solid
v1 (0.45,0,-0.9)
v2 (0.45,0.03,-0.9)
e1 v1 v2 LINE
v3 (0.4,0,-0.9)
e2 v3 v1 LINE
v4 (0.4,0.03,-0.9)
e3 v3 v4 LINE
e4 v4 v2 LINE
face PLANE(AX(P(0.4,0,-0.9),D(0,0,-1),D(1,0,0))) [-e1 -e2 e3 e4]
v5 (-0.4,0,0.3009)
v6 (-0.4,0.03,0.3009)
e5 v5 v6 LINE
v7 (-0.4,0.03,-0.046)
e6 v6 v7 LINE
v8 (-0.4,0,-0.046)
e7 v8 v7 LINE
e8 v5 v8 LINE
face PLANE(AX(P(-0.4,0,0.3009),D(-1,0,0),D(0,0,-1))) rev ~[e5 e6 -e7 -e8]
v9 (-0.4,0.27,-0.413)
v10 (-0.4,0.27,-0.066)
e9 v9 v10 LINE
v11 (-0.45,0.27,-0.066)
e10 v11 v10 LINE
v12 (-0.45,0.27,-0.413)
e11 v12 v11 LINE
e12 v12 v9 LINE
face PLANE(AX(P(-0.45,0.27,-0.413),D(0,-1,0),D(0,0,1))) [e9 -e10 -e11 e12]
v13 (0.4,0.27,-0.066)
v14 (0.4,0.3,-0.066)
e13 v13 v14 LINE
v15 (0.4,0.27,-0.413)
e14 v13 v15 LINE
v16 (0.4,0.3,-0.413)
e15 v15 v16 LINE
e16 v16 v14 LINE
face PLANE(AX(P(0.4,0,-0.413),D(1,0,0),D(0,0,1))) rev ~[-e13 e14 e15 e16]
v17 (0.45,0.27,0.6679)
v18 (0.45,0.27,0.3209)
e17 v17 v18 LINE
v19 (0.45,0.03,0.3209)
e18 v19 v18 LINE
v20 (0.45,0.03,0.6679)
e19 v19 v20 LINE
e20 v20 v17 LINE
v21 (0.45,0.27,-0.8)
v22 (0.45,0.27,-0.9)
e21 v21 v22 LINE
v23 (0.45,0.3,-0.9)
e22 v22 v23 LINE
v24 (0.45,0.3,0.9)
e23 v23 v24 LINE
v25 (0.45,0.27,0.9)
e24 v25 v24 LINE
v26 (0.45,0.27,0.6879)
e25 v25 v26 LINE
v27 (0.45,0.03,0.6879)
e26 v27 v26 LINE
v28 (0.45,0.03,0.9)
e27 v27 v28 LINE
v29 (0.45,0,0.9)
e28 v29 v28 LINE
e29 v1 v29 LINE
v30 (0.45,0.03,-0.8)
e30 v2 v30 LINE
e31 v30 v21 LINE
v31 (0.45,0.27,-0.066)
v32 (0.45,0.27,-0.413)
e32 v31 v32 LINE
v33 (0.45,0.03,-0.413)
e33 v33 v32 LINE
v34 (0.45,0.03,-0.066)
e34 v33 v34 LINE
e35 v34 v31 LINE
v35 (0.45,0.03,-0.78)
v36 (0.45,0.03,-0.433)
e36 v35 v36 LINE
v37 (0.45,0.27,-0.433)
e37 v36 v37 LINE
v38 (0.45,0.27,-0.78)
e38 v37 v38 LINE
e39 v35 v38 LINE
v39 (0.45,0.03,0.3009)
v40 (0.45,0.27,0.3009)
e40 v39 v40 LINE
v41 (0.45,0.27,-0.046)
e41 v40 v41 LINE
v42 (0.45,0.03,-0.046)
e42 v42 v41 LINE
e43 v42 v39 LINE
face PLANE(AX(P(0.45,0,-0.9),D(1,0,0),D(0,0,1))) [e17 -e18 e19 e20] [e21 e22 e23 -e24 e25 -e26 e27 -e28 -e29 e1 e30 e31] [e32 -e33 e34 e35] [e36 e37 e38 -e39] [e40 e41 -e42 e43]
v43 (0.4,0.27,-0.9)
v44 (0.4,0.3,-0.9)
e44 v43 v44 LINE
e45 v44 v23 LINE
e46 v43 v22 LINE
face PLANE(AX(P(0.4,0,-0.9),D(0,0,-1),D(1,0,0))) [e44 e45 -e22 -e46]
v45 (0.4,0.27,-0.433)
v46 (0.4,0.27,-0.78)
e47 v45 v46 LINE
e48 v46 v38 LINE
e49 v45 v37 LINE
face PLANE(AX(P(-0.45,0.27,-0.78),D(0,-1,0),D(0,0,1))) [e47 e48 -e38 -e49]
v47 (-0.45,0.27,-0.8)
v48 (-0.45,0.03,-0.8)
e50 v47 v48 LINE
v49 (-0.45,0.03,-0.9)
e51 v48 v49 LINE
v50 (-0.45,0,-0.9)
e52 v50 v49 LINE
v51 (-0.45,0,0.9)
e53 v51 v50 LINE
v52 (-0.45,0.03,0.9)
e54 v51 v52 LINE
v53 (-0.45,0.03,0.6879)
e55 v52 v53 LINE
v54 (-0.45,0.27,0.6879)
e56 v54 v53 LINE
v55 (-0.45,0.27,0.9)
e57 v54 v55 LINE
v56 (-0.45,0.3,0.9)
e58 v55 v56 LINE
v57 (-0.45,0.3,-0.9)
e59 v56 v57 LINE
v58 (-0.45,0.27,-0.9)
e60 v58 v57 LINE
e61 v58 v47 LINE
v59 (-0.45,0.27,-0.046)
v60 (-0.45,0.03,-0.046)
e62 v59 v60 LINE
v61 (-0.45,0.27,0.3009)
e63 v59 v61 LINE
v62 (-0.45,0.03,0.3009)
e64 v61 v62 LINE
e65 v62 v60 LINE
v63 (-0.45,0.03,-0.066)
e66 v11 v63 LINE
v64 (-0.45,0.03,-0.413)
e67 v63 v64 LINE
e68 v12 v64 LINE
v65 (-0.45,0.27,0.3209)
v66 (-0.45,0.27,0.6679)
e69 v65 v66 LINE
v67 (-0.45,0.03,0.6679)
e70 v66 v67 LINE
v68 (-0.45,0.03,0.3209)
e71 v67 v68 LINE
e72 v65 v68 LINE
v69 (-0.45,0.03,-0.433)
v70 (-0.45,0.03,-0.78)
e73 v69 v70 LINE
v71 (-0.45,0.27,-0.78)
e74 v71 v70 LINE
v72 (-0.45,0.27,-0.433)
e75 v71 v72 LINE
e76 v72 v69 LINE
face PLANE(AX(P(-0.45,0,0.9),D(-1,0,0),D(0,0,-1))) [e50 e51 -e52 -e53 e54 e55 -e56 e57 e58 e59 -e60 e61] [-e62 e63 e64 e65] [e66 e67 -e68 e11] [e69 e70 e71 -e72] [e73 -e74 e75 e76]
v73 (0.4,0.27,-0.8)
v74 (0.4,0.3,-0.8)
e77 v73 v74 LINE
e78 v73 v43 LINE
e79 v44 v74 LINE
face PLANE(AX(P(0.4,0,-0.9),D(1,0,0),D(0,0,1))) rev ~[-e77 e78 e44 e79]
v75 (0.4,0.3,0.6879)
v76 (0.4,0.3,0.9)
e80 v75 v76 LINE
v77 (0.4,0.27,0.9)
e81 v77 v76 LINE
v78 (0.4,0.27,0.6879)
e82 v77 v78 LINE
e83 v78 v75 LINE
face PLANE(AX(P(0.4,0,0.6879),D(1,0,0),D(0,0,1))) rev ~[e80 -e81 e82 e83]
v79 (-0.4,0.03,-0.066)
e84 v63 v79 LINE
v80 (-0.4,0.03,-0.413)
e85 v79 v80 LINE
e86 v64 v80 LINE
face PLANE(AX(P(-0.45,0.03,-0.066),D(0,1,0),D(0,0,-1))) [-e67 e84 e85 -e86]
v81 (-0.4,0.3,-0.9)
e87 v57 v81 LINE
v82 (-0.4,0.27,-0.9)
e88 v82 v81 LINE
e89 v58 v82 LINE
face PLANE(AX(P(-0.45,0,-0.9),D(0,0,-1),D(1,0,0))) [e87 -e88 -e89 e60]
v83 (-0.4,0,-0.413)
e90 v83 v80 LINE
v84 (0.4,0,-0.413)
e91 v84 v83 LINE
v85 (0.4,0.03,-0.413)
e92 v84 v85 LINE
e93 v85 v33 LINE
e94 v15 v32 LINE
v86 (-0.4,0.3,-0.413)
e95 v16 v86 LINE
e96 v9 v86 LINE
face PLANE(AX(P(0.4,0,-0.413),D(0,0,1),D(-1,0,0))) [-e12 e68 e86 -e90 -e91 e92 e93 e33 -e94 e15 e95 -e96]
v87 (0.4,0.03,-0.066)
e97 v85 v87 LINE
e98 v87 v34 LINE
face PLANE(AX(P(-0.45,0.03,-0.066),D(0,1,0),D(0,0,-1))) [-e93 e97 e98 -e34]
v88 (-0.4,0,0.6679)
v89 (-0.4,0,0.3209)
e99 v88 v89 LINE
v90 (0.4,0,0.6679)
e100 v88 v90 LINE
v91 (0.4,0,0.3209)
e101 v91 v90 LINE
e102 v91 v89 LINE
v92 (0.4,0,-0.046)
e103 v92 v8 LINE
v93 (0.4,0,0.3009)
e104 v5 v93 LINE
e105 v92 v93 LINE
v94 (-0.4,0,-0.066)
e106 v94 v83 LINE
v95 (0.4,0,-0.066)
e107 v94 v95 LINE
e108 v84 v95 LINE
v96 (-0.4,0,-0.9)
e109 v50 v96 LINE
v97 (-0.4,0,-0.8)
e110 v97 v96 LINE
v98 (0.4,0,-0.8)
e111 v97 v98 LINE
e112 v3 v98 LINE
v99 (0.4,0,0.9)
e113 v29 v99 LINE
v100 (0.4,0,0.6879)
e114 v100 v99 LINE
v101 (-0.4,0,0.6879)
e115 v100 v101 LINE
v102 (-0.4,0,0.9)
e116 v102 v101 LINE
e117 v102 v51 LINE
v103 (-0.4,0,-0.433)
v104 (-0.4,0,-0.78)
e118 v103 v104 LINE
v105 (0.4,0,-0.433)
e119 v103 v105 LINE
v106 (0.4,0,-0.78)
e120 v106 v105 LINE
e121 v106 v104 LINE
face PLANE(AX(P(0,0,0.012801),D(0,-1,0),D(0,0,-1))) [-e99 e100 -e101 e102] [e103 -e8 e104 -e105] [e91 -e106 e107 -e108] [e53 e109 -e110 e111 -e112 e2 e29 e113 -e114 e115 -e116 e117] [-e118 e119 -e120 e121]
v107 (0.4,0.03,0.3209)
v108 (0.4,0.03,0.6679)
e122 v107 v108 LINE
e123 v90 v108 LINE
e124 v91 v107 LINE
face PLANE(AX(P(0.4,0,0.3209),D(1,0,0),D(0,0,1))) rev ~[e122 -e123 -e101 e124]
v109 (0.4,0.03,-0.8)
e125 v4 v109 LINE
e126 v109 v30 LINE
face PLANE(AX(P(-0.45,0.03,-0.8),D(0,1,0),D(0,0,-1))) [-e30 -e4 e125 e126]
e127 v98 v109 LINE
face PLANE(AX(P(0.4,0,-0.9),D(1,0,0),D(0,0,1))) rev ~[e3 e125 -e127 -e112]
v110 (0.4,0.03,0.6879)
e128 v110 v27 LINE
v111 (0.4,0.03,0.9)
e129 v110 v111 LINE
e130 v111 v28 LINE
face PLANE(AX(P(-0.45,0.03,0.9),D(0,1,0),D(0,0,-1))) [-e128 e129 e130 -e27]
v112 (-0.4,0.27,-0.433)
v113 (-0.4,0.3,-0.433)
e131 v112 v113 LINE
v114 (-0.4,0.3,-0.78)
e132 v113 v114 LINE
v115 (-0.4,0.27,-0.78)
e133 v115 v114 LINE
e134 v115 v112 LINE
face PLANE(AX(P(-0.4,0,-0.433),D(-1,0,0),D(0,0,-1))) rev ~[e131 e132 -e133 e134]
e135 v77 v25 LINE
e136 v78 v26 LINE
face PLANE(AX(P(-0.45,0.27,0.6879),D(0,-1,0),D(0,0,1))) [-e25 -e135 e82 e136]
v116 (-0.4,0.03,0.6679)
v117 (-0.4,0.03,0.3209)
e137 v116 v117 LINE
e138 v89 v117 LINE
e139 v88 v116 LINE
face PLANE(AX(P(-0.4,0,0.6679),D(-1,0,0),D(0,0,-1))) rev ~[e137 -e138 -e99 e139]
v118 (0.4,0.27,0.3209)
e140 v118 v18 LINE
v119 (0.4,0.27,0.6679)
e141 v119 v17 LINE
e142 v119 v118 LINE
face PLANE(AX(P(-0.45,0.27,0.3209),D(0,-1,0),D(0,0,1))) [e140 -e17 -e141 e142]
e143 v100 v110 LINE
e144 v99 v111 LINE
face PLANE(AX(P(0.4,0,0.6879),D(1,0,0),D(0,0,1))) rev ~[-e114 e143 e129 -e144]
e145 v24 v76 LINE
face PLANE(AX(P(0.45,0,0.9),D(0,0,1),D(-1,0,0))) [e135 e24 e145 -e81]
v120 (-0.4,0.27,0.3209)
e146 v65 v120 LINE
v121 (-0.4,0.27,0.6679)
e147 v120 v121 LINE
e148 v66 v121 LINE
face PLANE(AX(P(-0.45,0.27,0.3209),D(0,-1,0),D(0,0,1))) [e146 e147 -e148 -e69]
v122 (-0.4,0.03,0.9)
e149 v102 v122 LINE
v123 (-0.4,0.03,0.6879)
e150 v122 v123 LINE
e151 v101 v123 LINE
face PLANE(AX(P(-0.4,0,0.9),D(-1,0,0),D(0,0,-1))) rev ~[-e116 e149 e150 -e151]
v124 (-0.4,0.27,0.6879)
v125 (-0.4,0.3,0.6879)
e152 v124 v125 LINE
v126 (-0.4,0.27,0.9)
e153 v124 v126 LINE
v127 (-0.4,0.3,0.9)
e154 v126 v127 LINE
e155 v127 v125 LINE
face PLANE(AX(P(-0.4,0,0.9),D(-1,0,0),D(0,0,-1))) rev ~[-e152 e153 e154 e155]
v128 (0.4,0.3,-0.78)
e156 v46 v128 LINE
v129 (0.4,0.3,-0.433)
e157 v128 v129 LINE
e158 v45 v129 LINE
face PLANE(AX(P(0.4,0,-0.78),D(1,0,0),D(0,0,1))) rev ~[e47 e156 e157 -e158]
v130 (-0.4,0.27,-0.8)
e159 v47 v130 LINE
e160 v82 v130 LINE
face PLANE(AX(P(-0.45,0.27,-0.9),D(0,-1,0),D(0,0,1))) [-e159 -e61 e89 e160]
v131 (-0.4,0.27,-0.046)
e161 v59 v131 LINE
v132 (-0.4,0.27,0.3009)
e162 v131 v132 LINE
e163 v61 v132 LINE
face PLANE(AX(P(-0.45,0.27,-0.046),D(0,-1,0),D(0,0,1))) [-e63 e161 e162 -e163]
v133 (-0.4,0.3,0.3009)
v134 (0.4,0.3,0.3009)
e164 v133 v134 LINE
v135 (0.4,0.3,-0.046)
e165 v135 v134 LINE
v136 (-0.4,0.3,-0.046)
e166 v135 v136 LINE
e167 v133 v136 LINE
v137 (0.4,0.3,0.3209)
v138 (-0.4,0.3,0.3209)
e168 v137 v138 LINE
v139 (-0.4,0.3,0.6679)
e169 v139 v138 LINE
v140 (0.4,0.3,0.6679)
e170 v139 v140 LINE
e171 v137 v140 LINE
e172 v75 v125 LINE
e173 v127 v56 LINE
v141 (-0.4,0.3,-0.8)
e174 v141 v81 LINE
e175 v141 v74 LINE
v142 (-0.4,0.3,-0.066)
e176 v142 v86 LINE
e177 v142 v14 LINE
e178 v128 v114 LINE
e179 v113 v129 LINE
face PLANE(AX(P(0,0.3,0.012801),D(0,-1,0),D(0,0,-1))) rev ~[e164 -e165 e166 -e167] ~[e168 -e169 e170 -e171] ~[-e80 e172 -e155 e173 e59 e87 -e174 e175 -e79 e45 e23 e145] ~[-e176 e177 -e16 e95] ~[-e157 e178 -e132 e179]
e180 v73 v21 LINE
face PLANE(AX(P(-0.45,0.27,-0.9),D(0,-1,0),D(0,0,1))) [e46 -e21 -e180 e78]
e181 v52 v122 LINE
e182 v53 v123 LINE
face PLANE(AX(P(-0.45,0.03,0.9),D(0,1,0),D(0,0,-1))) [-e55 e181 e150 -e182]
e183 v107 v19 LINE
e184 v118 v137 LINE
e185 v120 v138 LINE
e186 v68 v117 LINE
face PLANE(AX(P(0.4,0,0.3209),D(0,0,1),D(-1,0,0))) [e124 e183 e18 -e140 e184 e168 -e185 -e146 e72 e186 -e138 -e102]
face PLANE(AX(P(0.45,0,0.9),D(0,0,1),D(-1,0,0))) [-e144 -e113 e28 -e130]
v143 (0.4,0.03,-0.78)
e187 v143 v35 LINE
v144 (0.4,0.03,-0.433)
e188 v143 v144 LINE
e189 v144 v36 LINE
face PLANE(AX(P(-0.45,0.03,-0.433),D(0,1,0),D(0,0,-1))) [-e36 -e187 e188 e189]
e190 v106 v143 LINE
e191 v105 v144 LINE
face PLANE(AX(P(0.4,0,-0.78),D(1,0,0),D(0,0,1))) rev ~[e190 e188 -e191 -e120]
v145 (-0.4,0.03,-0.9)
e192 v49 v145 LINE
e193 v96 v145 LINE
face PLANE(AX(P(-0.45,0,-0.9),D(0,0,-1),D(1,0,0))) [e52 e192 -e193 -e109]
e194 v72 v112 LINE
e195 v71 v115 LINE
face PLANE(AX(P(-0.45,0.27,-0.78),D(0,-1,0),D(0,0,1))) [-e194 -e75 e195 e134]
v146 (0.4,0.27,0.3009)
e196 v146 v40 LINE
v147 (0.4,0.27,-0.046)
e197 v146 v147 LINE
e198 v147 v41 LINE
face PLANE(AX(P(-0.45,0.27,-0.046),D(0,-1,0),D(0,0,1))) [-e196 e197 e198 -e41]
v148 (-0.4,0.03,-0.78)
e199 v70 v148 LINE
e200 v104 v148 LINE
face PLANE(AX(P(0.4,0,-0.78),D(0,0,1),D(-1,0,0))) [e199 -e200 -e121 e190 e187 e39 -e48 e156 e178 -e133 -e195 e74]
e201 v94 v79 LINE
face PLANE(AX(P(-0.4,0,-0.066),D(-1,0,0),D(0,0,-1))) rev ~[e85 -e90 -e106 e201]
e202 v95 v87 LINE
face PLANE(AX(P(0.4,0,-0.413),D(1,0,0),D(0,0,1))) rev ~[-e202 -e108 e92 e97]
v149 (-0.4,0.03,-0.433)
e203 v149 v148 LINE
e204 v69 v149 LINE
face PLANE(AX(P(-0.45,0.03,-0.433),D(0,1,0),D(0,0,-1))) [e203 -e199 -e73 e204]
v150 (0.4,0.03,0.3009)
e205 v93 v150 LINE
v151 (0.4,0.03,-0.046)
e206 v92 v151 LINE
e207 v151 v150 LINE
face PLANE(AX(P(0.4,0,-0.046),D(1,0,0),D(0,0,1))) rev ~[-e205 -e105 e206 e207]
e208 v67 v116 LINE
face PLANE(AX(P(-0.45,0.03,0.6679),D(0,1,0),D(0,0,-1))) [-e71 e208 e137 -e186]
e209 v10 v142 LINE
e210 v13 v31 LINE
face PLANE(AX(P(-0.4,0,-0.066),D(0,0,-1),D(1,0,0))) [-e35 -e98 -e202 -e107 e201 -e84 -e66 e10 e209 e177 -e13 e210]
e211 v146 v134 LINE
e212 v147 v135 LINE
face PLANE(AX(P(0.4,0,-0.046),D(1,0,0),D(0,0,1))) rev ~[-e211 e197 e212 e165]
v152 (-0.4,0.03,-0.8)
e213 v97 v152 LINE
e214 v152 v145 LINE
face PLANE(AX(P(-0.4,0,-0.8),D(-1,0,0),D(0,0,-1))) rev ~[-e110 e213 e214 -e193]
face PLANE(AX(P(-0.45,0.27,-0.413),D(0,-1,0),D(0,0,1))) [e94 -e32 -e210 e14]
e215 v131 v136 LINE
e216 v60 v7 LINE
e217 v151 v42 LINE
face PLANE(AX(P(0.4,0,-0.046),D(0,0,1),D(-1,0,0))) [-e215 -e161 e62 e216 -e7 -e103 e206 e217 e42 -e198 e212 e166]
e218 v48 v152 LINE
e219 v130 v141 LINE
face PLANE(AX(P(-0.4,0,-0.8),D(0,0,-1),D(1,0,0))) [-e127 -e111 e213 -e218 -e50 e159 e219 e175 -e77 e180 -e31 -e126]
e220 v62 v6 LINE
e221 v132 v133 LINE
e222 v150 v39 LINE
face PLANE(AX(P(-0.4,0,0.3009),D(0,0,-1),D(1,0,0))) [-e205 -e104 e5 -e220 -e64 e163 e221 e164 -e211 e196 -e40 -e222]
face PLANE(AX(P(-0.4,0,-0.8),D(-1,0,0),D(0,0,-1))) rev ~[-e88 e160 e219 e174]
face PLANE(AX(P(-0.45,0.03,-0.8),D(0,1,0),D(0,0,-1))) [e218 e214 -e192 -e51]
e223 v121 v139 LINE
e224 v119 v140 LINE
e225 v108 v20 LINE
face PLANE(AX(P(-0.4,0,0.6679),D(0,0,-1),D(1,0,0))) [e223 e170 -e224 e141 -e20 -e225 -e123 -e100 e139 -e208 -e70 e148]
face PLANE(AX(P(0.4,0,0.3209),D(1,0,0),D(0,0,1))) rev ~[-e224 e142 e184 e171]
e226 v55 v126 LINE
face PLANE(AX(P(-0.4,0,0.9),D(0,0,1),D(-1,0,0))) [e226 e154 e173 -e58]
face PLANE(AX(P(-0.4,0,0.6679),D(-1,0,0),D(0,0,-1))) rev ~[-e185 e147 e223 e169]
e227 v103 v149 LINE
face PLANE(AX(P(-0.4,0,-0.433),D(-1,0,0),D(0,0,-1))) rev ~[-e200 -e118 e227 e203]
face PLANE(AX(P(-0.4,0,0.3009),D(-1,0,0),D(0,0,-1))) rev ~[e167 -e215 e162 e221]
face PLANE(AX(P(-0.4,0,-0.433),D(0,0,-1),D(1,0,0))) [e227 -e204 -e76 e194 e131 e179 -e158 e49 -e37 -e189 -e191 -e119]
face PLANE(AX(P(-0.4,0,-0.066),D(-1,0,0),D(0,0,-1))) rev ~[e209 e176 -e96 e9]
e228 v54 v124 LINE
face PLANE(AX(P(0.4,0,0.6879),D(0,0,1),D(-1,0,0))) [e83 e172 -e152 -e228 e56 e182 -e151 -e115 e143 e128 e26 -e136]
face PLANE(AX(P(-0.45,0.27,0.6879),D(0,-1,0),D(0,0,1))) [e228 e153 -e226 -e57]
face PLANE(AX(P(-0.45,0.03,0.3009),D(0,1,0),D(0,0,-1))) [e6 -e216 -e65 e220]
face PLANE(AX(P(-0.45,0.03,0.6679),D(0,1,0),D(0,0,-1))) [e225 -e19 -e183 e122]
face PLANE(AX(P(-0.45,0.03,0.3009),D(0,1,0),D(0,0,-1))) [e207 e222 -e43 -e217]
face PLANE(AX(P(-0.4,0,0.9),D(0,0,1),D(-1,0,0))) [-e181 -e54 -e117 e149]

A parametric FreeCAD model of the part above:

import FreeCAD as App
import Part
import Sketcher


def add_polygon(sketch, points):
    """Adds a closed chain of lines whose ends are joined by coincident constraints."""
    first, n = sketch.GeometryCount, len(points)
    for a, b in zip(points, points[1:] + points[:1]):
        sketch.addGeometry(Part.LineSegment(App.Vector(*a, 0), App.Vector(*b, 0)), False)
    for i in range(n):
        sketch.addConstraint(Sketcher.Constraint("Coincident", first + i, 2, first + (i + 1) % n, 1))

doc = App.newDocument("Part")
body = doc.addObject("PartDesign::Body", "Body")

# Sketch on XZ plane
sketch1 = body.newObject("Sketcher::SketchObject", "Sketch")
sketch1.AttachmentSupport = (doc.getObject("XZ_Plane"), [""])
sketch1.MapMode = "FlatFace"
add_polygon(sketch1, [(0.4, -0.8), (0.4, -0.9), (0.45, -0.9), (0.45, 0.9), (0.4, 0.9), (0.4, 0.6879), (-0.4, 0.6879), (-0.4, 0.9), (-0.45, 0.9), (-0.45, -0.9), (-0.4, -0.9), (-0.4, -0.8)])  # lines 0-11
add_polygon(sketch1, [(-0.4, -0.78), (-0.4, -0.433), (0.4, -0.433), (0.4, -0.78)])  # lines 12-15
add_polygon(sketch1, [(-0.4, -0.413), (-0.4, -0.066), (0.4, -0.066), (0.4, -0.413)])  # lines 16-19
add_polygon(sketch1, [(-0.4, -0.046), (-0.4, 0.3009), (0.4, 0.3009), (0.4, -0.046)])  # lines 20-23
add_polygon(sketch1, [(-0.4, 0.3209), (-0.4, 0.6679), (0.4, 0.6679), (0.4, 0.3209)])  # lines 24-27
sketch1.addConstraint([
    Sketcher.Constraint("Vertical", 0),
    Sketcher.Constraint("Horizontal", 1),
    Sketcher.Constraint("Vertical", 2),
    Sketcher.Constraint("Horizontal", 3),
    Sketcher.Constraint("Vertical", 4),
    Sketcher.Constraint("Horizontal", 5),
    Sketcher.Constraint("Vertical", 6),
    Sketcher.Constraint("Horizontal", 7),
    Sketcher.Constraint("Vertical", 8),
    Sketcher.Constraint("Horizontal", 9),
    Sketcher.Constraint("Vertical", 10),
    Sketcher.Constraint("Horizontal", 11),
    Sketcher.Constraint("Vertical", 12),
    Sketcher.Constraint("Horizontal", 13),
    Sketcher.Constraint("Vertical", 14),
    Sketcher.Constraint("Horizontal", 15),
    Sketcher.Constraint("Vertical", 16),
    Sketcher.Constraint("Horizontal", 17),
    Sketcher.Constraint("Vertical", 18),
    Sketcher.Constraint("Horizontal", 19),
    Sketcher.Constraint("Vertical", 20),
    Sketcher.Constraint("Horizontal", 21),
    Sketcher.Constraint("Vertical", 22),
    Sketcher.Constraint("Horizontal", 23),
    Sketcher.Constraint("Vertical", 24),
    Sketcher.Constraint("Horizontal", 25),
    Sketcher.Constraint("Vertical", 26),
    Sketcher.Constraint("Horizontal", 27),
    Sketcher.Constraint("Symmetric", 0, 2, 6, 2, -1, 1),
    Sketcher.Constraint("Symmetric", 2, 2, 8, 2, -1, 1),
    Sketcher.Constraint("Symmetric", 3, 2, 6, 2, -2),
    Sketcher.Constraint("Vertical", 6, 2, 9, 2),
    Sketcher.Constraint("Vertical", 10, 2, 12, 2),
    Sketcher.Constraint("Vertical", 11, 2, 13, 2),
    Sketcher.Constraint("Vertical", 15, 2, 16, 2),
    Sketcher.Constraint("Vertical", 14, 2, 17, 2),
    Sketcher.Constraint("Vertical", 19, 2, 20, 2),
    Sketcher.Constraint("Vertical", 18, 2, 21, 2),
    Sketcher.Constraint("Vertical", 23, 2, 24, 2),
    Sketcher.Constraint("Vertical", 22, 2, 25, 2),
    Sketcher.Constraint("Equal", 14, 16),
    Sketcher.Constraint("Equal", 18, 20),
    Sketcher.Constraint("Equal", 22, 24),
    Sketcher.Constraint("DistanceX", -1, 1, 0, 2, 0.4),
    Sketcher.Constraint("DistanceX", -1, 1, 1, 2, 0.45),
    Sketcher.Constraint("DistanceY", 0, 2, 0, 1, 0.1),
    Sketcher.Constraint("DistanceY", 2, 1, 2, 2, 1.8),
    Sketcher.Constraint("DistanceY", 4, 2, 4, 1, 0.212),
    Sketcher.Constraint("DistanceY", 12, 1, 12, 2, 0.347),
    Sketcher.Constraint("DistanceY", 14, 2, -1, 1, 0.78),
    Sketcher.Constraint("DistanceY", 13, 2, 18, 2, 0.02),
    Sketcher.Constraint("DistanceY", 17, 2, 22, 2, 0.02),
    Sketcher.Constraint("DistanceY", 24, 2, 5, 2, 0.02),
])
pad1 = body.newObject("PartDesign::Pad", "Pad")
pad1.Profile = sketch1
pad1.Length = 0.3
pad1.Reversed = True

# Sketch on YZ plane
sketch2 = body.newObject("Sketcher::SketchObject", "Sketch001")
sketch2.AttachmentSupport = (doc.getObject("YZ_Plane"), [""])
sketch2.MapMode = "FlatFace"
sketch2.AttachmentOffset = App.Placement(App.Vector(0, 0, -0.45), App.Rotation())
add_polygon(sketch2, [(0.03, 0.6679), (0.27, 0.6679), (0.27, 0.3209), (0.03, 0.3209)])  # lines 0-3
add_polygon(sketch2, [(0.03, 0.3009), (0.27, 0.3009), (0.27, -0.046), (0.03, -0.046)])  # lines 4-7
add_polygon(sketch2, [(0.03, -0.066), (0.27, -0.066), (0.27, -0.413), (0.03, -0.413)])  # lines 8-11
add_polygon(sketch2, [(0.03, -0.433), (0.27, -0.433), (0.27, -0.78), (0.03, -0.78)])  # lines 12-15
add_polygon(sketch2, [(0.03, -0.8), (0.27, -0.8), (0.27, -0.9), (0.03, -0.9)])  # lines 16-19
add_polygon(sketch2, [(0.27, 0.9), (0.27, 0.6879), (0.03, 0.6879), (0.03, 0.9)])  # lines 20-23
sketch2.addConstraint([
    Sketcher.Constraint("Horizontal", 0),
    Sketcher.Constraint("Vertical", 1),
    Sketcher.Constraint("Horizontal", 2),
    Sketcher.Constraint("Vertical", 3),
    Sketcher.Constraint("Horizontal", 4),
    Sketcher.Constraint("Vertical", 5),
    Sketcher.Constraint("Horizontal", 6),
    Sketcher.Constraint("Vertical", 7),
    Sketcher.Constraint("Horizontal", 8),
    Sketcher.Constraint("Vertical", 9),
    Sketcher.Constraint("Horizontal", 10),
    Sketcher.Constraint("Vertical", 11),
    Sketcher.Constraint("Horizontal", 12),
    Sketcher.Constraint("Vertical", 13),
    Sketcher.Constraint("Horizontal", 14),
    Sketcher.Constraint("Vertical", 15),
    Sketcher.Constraint("Horizontal", 16),
    Sketcher.Constraint("Vertical", 17),
    Sketcher.Constraint("Horizontal", 18),
    Sketcher.Constraint("Vertical", 19),
    Sketcher.Constraint("Vertical", 20),
    Sketcher.Constraint("Horizontal", 21),
    Sketcher.Constraint("Vertical", 22),
    Sketcher.Constraint("Horizontal", 23),
    Sketcher.Constraint("Symmetric", 18, 2, 22, 2, -1),
    Sketcher.Constraint("Vertical", 1, 2, 4, 2),
    Sketcher.Constraint("Vertical", 3, 2, 6, 2),
    Sketcher.Constraint("Vertical", 5, 2, 8, 2),
    Sketcher.Constraint("Vertical", 7, 2, 10, 2),
    Sketcher.Constraint("Vertical", 9, 2, 12, 2),
    Sketcher.Constraint("Vertical", 11, 2, 14, 2),
    Sketcher.Constraint("Vertical", 13, 2, 16, 2),
    Sketcher.Constraint("Vertical", 15, 2, 18, 2),
    Sketcher.Constraint("Vertical", 17, 2, 20, 2),
    Sketcher.Constraint("Equal", 3, 5),
    Sketcher.Constraint("Equal", 7, 9),
    Sketcher.Constraint("Equal", 11, 13),
    Sketcher.Constraint("DistanceY", 17, 2, -1, 1, 0.9),
    Sketcher.Constraint("DistanceY", 17, 2, 17, 1, 0.1),
    Sketcher.Constraint("DistanceX", 0, 1, 0, 2, 0.24),
    Sketcher.Constraint("DistanceY", 1, 2, 1, 1, 0.347),
    Sketcher.Constraint("DistanceY", 20, 2, 20, 1, 0.212),
    Sketcher.Constraint("DistanceX", -1, 1, 0, 2, 0.27),
    Sketcher.Constraint("DistanceY", 13, 2, -1, 1, 0.78),
    Sketcher.Constraint("DistanceY", 4, 2, 1, 2, 0.02),
    Sketcher.Constraint("DistanceY", 8, 2, 5, 2, 0.02),
    Sketcher.Constraint("DistanceY", 12, 2, 9, 2, 0.02),
])
pocket1 = body.newObject("PartDesign::Pocket", "Pocket")
pocket1.Profile = sketch2
pocket1.Type = "ThroughAll"
pocket1.Reversed = True

doc.recompute()
